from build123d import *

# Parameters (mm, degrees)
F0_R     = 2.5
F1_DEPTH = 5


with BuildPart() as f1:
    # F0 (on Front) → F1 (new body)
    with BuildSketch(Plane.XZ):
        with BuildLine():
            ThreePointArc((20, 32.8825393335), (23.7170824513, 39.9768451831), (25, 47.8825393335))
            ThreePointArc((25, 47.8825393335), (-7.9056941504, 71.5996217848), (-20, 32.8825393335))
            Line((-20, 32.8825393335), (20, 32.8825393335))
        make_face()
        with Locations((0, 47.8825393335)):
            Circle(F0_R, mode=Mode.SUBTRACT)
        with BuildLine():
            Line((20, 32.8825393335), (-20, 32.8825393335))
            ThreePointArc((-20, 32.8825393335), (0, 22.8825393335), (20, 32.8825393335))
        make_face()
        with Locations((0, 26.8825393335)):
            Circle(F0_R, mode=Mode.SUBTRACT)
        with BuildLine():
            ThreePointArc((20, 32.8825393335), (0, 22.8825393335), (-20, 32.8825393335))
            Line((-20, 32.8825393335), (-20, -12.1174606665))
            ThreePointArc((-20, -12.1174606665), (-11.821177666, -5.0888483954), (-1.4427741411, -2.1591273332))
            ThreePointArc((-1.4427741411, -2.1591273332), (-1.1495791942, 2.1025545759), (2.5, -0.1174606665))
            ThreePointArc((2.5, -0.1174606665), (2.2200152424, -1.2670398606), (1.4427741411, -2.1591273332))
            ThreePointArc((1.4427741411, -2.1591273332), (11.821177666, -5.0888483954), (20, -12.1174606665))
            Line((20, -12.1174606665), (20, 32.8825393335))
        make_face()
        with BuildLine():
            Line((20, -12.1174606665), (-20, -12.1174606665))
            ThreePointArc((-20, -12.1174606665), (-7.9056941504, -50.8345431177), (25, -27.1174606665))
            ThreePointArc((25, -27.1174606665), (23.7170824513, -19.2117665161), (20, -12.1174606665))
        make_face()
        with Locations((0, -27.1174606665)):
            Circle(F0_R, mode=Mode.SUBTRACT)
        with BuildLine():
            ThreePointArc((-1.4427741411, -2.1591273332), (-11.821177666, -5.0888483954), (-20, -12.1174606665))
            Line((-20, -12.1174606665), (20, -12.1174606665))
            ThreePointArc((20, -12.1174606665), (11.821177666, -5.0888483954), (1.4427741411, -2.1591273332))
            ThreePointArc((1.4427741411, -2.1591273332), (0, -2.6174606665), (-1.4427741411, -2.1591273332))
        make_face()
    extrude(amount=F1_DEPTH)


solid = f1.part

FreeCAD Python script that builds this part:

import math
import FreeCAD as App
import Part
import Sketcher
Q = App.Units.Quantity

doc = App.newDocument("Part")
body = doc.addObject("PartDesign::Body", "Body")

# Sketch on XZ plane
sketch1 = body.newObject("Sketcher::SketchObject", "Sketch")
sketch1.AttachmentSupport = (doc.getObject("XZ_Plane"), [""])
sketch1.MapMode = "FlatFace"
sketch1.addGeometry([
    Part.ArcOfCircle(Part.Circle(App.Vector(0, 47.9, 0), App.Vector(0, 0, 1), 25), math.radians(-37), math.radians(0)),  # 0
    Part.ArcOfCircle(Part.Circle(App.Vector(0, 47.9, 0), App.Vector(0, 0, 1), 25), math.radians(0), math.radians(217)),  # 1
    Part.LineSegment(App.Vector(-20, 32.9, 0), App.Vector(-20, -12.1, 0)),  # 2
    Part.ArcOfCircle(Part.Circle(App.Vector(0, -27.1, 0), App.Vector(0, 0, 1), 25), math.radians(143), math.radians(360)),  # 3
    Part.ArcOfCircle(Part.Circle(App.Vector(0, -27.1, 0), App.Vector(0, 0, 1), 25), math.radians(0), math.radians(37)),  # 4
    Part.LineSegment(App.Vector(20, -12.1, 0), App.Vector(20, 32.9, 0)),  # 5
    Part.ArcOfCircle(Part.Circle(App.Vector(0, -0.1, 0), App.Vector(0, 0, 1), 2.5), math.radians(0), math.radians(235)),  # 6
    Part.ArcOfCircle(Part.Circle(App.Vector(0, -0.1, 0), App.Vector(0, 0, 1), 2.5), math.radians(-55), math.radians(0)),  # 7
    Part.ArcOfCircle(Part.Circle(App.Vector(0, -0.1, 0), App.Vector(0, 0, 1), 2.5), math.radians(-125), math.radians(-55)),  # 8
    Part.Circle(App.Vector(0, 26.9, 0), App.Vector(0, 0, 1), 2.5),  # 9
    Part.Circle(App.Vector(0, 47.9, 0), App.Vector(0, 0, 1), 2.5),  # 10
    Part.Circle(App.Vector(0, -27.1, 0), App.Vector(0, 0, 1), 2.5),  # 11
], False)
sketch1.addConstraint([
    Sketcher.Constraint("Tangent", 0, 2, 1, 1),
    Sketcher.Constraint("Coincident", 1, 2, 2, 1),
    Sketcher.Constraint("Coincident", 2, 2, 3, 1),
    Sketcher.Constraint("Tangent", 3, 2, 4, 1),
    Sketcher.Constraint("Coincident", 4, 2, 5, 1),
    Sketcher.Constraint("Coincident", 5, 2, 0, 1),
    Sketcher.Constraint("Tangent", 6, 1, 7, 2),
    Sketcher.Constraint("Tangent", 7, 1, 8, 2),
    Sketcher.Constraint("Tangent", 8, 1, 6, 2),
    Sketcher.Constraint("Vertical", 2),
    Sketcher.Constraint("Vertical", 5),
    Sketcher.Constraint("Coincident", 10, 3, 0, 3),
    Sketcher.Constraint("Coincident", 11, 3, 3, 3),
    Sketcher.Constraint("Equal", 0, 1),
    Sketcher.Constraint("Equal", 1, 3),
    Sketcher.Constraint("Equal", 3, 4),
    Sketcher.Constraint("Equal", 8, 9),
    Sketcher.Constraint("Equal", 9, 10),
    Sketcher.Constraint("Equal", 10, 11),
    Sketcher.Constraint("Symmetric", 2, 2, 4, 2, -2),
    Sketcher.Constraint("Symmetric", 7, 1, 8, 1, -2),
    Sketcher.Constraint("PointOnObject", 0, 3, -2),
    Sketcher.Constraint("PointOnObject", 9, 3, -2),
    Sketcher.Constraint("Horizontal", 10, 3, 0, 2),
    Sketcher.Constraint("Horizontal", 11, 3, 3, 2),
    Sketcher.Constraint("Horizontal", 8, 3, 6, 1),
    Sketcher.Constraint("Diameter", 9, Q("5 mm")),
    Sketcher.Constraint("Radius", 0, Q("25 mm")),
    Sketcher.Constraint("DistanceY", 2, 2, 2, 1, Q("45 mm")),
    Sketcher.Constraint("DistanceX", 1, 2, -1, 1, Q("20 mm")),
    Sketcher.Constraint("DistanceY", 3, 3, 6, 3, Q("27 mm")),
    Sketcher.Constraint("DistanceY", 9, 3, 0, 3, Q("21 mm")),
    Sketcher.Constraint("DistanceY", -1, 1, 0, 3, Q("47.882539 mm")),
    Sketcher.Constraint("DistanceX", 8, 1, 7, 1, Q("2.885548 mm")),
])
pad1 = body.newObject("PartDesign::Pad", "Pad")
pad1.Profile = sketch1
pad1.Length = 5

doc.recompute()
